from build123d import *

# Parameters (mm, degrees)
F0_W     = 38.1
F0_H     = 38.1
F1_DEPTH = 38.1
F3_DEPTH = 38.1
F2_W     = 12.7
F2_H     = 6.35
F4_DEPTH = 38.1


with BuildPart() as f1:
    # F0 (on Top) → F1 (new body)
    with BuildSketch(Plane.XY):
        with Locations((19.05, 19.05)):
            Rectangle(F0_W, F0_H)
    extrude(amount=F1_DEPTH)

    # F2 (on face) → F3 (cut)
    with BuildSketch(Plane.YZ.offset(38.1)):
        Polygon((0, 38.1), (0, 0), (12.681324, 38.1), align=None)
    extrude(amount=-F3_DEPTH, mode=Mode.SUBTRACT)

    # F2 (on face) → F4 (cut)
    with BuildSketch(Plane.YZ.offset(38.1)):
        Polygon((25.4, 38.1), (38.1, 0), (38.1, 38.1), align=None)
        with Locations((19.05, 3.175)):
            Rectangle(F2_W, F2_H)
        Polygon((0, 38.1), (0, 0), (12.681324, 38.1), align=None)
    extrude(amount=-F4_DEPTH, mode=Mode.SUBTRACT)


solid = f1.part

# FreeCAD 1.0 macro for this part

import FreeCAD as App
import Part
import Sketcher

V = App.Vector
Q = App.Units.Quantity


def add_polygon(sketch, points):
    """Adds a closed chain of lines whose ends are joined by coincident constraints."""
    first, n = sketch.GeometryCount, len(points)
    for a, b in zip(points, points[1:] + points[:1]):
        sketch.addGeometry(Part.LineSegment(App.Vector(*a, 0), App.Vector(*b, 0)), False)
    for i in range(n):
        sketch.addConstraint(Sketcher.Constraint("Coincident", first + i, 2, first + (i + 1) % n, 1))

doc = App.newDocument("Part")
body = doc.addObject("PartDesign::Body", "Body")

sketch1 = body.newObject("Sketcher::SketchObject", "Sketch")
sketch1.AttachmentSupport = (doc.getObject("XY_Plane"), [""])
sketch1.MapMode = "FlatFace"
add_polygon(sketch1, [(0, 38), (0, 0), (38, 0), (38, 38)])
sketch1.addConstraint([
    Sketcher.Constraint("Vertical", 0),
    Sketcher.Constraint("Horizontal", 1),
    Sketcher.Constraint("Vertical", 2),
    Sketcher.Constraint("Horizontal", 3),
    Sketcher.Constraint("Coincident", 0, 2, -1, 1),
    Sketcher.Constraint("Equal", 3, 0),
    Sketcher.Constraint("DistanceX", 1, 1, 1, 2, Q("1.5 in")),
])
pad1 = body.newObject("PartDesign::Pad", "Pad")
pad1.Profile = sketch1
pad1.Length = Q("1.5 in")

sketch2 = body.newObject("Sketcher::SketchObject", "Sketch001")
sketch2.AttachmentSupport = (doc.getObject("YZ_Plane"), [""])
sketch2.MapMode = "FlatFace"
sketch2.AttachmentOffset = App.Placement(V(0, 0, 1.5 * 25.4), App.Rotation())
add_polygon(sketch2, [(0, 38), (0, 0), (13, 38)])
sketch2.addConstraint([
    Sketcher.Constraint("Vertical", 0),
    Sketcher.Constraint("Horizontal", 2),
    Sketcher.Constraint("Coincident", 0, 2, -1, 1),
    Sketcher.Constraint("DistanceY", 0, 2, 0, 1, Q("1.5 in")),
    Sketcher.Constraint("DistanceX", 2, 2, 2, 1, 12.681324),
])
pocket1 = body.newObject("PartDesign::Pocket", "Pocket")
pocket1.Profile = sketch2
pocket1.Length = Q("1.5 in")

sketch3 = body.newObject("Sketcher::SketchObject", "Sketch002")
sketch3.AttachmentSupport = (doc.getObject("YZ_Plane"), [""])
sketch3.MapMode = "FlatFace"
sketch3.AttachmentOffset = App.Placement(V(0, 0, 1.5 * 25.4), App.Rotation())
add_polygon(sketch3, [(25, 38), (38, 0), (38, 38)])
add_polygon(sketch3, [(13, 6), (13, 0), (25, 0), (25, 6)])
add_polygon(sketch3, [(0, 38), (0, 0), (13, 38)])
sketch3.addConstraint([
    Sketcher.Constraint("Vertical", 1),
    Sketcher.Constraint("Horizontal", 2),
    Sketcher.Constraint("Vertical", 3),
    Sketcher.Constraint("Horizontal", 4),
    Sketcher.Constraint("Vertical", 5),
    Sketcher.Constraint("Horizontal", 6),
    Sketcher.Constraint("Vertical", 7),
    Sketcher.Constraint("Horizontal", 9),
    Sketcher.Constraint("Coincident", 7, 2, -1, 1),
    Sketcher.Constraint("PointOnObject", 0, 2, -1),
    Sketcher.Constraint("PointOnObject", 3, 2, -1),
    Sketcher.Constraint("Horizontal", 2, 2, 8, 2),
    Sketcher.Constraint("Vertical", 2, 2, 4, 2),
    Sketcher.Constraint("Equal", 2, 4),
    Sketcher.Constraint("DistanceX", 2, 2, 2, 1, Q("0.5 in")),
    Sketcher.Constraint("DistanceY", 1, 1, 1, 2, Q("1.5 in")),
    Sketcher.Constraint("DistanceX", -1, 1, 2, 2, Q("1 in")),
    Sketcher.Constraint("DistanceY", 3, 2, 3, 1, Q("0.25 in")),
    Sketcher.Constraint("DistanceX", 9, 2, 9, 1, 12.681324),
])
pocket2 = body.newObject("PartDesign::Pocket", "Pocket001")
pocket2.Profile = sketch3
pocket2.Length = Q("1.5 in")

doc.recompute()
